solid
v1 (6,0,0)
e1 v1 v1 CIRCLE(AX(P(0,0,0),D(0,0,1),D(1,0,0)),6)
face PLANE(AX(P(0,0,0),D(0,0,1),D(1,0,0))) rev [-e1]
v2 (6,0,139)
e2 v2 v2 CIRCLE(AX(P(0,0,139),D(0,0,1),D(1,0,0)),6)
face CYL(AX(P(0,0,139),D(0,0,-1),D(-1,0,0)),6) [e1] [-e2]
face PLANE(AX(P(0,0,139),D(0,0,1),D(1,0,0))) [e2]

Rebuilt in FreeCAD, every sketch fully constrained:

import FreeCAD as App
import Part
import Sketcher

doc = App.newDocument("Part")
body = doc.addObject("PartDesign::Body", "Body")

sketch1 = body.newObject("Sketcher::SketchObject", "Sketch")
sketch1.AttachmentSupport = (doc.getObject("XY_Plane"), [""])
sketch1.MapMode = "FlatFace"
sketch1.addGeometry(Part.Circle(App.Vector(0, 0, 0), App.Vector(0, 0, 1), 6), False)
sketch1.addConstraint([
    Sketcher.Constraint("Coincident", 0, 3, -1, 1),
    Sketcher.Constraint("Diameter", 0, 12.0),
])
pad1 = body.newObject("PartDesign::Pad", "Pad")
pad1.Profile = sketch1
pad1.Length = 139

doc.recompute()
